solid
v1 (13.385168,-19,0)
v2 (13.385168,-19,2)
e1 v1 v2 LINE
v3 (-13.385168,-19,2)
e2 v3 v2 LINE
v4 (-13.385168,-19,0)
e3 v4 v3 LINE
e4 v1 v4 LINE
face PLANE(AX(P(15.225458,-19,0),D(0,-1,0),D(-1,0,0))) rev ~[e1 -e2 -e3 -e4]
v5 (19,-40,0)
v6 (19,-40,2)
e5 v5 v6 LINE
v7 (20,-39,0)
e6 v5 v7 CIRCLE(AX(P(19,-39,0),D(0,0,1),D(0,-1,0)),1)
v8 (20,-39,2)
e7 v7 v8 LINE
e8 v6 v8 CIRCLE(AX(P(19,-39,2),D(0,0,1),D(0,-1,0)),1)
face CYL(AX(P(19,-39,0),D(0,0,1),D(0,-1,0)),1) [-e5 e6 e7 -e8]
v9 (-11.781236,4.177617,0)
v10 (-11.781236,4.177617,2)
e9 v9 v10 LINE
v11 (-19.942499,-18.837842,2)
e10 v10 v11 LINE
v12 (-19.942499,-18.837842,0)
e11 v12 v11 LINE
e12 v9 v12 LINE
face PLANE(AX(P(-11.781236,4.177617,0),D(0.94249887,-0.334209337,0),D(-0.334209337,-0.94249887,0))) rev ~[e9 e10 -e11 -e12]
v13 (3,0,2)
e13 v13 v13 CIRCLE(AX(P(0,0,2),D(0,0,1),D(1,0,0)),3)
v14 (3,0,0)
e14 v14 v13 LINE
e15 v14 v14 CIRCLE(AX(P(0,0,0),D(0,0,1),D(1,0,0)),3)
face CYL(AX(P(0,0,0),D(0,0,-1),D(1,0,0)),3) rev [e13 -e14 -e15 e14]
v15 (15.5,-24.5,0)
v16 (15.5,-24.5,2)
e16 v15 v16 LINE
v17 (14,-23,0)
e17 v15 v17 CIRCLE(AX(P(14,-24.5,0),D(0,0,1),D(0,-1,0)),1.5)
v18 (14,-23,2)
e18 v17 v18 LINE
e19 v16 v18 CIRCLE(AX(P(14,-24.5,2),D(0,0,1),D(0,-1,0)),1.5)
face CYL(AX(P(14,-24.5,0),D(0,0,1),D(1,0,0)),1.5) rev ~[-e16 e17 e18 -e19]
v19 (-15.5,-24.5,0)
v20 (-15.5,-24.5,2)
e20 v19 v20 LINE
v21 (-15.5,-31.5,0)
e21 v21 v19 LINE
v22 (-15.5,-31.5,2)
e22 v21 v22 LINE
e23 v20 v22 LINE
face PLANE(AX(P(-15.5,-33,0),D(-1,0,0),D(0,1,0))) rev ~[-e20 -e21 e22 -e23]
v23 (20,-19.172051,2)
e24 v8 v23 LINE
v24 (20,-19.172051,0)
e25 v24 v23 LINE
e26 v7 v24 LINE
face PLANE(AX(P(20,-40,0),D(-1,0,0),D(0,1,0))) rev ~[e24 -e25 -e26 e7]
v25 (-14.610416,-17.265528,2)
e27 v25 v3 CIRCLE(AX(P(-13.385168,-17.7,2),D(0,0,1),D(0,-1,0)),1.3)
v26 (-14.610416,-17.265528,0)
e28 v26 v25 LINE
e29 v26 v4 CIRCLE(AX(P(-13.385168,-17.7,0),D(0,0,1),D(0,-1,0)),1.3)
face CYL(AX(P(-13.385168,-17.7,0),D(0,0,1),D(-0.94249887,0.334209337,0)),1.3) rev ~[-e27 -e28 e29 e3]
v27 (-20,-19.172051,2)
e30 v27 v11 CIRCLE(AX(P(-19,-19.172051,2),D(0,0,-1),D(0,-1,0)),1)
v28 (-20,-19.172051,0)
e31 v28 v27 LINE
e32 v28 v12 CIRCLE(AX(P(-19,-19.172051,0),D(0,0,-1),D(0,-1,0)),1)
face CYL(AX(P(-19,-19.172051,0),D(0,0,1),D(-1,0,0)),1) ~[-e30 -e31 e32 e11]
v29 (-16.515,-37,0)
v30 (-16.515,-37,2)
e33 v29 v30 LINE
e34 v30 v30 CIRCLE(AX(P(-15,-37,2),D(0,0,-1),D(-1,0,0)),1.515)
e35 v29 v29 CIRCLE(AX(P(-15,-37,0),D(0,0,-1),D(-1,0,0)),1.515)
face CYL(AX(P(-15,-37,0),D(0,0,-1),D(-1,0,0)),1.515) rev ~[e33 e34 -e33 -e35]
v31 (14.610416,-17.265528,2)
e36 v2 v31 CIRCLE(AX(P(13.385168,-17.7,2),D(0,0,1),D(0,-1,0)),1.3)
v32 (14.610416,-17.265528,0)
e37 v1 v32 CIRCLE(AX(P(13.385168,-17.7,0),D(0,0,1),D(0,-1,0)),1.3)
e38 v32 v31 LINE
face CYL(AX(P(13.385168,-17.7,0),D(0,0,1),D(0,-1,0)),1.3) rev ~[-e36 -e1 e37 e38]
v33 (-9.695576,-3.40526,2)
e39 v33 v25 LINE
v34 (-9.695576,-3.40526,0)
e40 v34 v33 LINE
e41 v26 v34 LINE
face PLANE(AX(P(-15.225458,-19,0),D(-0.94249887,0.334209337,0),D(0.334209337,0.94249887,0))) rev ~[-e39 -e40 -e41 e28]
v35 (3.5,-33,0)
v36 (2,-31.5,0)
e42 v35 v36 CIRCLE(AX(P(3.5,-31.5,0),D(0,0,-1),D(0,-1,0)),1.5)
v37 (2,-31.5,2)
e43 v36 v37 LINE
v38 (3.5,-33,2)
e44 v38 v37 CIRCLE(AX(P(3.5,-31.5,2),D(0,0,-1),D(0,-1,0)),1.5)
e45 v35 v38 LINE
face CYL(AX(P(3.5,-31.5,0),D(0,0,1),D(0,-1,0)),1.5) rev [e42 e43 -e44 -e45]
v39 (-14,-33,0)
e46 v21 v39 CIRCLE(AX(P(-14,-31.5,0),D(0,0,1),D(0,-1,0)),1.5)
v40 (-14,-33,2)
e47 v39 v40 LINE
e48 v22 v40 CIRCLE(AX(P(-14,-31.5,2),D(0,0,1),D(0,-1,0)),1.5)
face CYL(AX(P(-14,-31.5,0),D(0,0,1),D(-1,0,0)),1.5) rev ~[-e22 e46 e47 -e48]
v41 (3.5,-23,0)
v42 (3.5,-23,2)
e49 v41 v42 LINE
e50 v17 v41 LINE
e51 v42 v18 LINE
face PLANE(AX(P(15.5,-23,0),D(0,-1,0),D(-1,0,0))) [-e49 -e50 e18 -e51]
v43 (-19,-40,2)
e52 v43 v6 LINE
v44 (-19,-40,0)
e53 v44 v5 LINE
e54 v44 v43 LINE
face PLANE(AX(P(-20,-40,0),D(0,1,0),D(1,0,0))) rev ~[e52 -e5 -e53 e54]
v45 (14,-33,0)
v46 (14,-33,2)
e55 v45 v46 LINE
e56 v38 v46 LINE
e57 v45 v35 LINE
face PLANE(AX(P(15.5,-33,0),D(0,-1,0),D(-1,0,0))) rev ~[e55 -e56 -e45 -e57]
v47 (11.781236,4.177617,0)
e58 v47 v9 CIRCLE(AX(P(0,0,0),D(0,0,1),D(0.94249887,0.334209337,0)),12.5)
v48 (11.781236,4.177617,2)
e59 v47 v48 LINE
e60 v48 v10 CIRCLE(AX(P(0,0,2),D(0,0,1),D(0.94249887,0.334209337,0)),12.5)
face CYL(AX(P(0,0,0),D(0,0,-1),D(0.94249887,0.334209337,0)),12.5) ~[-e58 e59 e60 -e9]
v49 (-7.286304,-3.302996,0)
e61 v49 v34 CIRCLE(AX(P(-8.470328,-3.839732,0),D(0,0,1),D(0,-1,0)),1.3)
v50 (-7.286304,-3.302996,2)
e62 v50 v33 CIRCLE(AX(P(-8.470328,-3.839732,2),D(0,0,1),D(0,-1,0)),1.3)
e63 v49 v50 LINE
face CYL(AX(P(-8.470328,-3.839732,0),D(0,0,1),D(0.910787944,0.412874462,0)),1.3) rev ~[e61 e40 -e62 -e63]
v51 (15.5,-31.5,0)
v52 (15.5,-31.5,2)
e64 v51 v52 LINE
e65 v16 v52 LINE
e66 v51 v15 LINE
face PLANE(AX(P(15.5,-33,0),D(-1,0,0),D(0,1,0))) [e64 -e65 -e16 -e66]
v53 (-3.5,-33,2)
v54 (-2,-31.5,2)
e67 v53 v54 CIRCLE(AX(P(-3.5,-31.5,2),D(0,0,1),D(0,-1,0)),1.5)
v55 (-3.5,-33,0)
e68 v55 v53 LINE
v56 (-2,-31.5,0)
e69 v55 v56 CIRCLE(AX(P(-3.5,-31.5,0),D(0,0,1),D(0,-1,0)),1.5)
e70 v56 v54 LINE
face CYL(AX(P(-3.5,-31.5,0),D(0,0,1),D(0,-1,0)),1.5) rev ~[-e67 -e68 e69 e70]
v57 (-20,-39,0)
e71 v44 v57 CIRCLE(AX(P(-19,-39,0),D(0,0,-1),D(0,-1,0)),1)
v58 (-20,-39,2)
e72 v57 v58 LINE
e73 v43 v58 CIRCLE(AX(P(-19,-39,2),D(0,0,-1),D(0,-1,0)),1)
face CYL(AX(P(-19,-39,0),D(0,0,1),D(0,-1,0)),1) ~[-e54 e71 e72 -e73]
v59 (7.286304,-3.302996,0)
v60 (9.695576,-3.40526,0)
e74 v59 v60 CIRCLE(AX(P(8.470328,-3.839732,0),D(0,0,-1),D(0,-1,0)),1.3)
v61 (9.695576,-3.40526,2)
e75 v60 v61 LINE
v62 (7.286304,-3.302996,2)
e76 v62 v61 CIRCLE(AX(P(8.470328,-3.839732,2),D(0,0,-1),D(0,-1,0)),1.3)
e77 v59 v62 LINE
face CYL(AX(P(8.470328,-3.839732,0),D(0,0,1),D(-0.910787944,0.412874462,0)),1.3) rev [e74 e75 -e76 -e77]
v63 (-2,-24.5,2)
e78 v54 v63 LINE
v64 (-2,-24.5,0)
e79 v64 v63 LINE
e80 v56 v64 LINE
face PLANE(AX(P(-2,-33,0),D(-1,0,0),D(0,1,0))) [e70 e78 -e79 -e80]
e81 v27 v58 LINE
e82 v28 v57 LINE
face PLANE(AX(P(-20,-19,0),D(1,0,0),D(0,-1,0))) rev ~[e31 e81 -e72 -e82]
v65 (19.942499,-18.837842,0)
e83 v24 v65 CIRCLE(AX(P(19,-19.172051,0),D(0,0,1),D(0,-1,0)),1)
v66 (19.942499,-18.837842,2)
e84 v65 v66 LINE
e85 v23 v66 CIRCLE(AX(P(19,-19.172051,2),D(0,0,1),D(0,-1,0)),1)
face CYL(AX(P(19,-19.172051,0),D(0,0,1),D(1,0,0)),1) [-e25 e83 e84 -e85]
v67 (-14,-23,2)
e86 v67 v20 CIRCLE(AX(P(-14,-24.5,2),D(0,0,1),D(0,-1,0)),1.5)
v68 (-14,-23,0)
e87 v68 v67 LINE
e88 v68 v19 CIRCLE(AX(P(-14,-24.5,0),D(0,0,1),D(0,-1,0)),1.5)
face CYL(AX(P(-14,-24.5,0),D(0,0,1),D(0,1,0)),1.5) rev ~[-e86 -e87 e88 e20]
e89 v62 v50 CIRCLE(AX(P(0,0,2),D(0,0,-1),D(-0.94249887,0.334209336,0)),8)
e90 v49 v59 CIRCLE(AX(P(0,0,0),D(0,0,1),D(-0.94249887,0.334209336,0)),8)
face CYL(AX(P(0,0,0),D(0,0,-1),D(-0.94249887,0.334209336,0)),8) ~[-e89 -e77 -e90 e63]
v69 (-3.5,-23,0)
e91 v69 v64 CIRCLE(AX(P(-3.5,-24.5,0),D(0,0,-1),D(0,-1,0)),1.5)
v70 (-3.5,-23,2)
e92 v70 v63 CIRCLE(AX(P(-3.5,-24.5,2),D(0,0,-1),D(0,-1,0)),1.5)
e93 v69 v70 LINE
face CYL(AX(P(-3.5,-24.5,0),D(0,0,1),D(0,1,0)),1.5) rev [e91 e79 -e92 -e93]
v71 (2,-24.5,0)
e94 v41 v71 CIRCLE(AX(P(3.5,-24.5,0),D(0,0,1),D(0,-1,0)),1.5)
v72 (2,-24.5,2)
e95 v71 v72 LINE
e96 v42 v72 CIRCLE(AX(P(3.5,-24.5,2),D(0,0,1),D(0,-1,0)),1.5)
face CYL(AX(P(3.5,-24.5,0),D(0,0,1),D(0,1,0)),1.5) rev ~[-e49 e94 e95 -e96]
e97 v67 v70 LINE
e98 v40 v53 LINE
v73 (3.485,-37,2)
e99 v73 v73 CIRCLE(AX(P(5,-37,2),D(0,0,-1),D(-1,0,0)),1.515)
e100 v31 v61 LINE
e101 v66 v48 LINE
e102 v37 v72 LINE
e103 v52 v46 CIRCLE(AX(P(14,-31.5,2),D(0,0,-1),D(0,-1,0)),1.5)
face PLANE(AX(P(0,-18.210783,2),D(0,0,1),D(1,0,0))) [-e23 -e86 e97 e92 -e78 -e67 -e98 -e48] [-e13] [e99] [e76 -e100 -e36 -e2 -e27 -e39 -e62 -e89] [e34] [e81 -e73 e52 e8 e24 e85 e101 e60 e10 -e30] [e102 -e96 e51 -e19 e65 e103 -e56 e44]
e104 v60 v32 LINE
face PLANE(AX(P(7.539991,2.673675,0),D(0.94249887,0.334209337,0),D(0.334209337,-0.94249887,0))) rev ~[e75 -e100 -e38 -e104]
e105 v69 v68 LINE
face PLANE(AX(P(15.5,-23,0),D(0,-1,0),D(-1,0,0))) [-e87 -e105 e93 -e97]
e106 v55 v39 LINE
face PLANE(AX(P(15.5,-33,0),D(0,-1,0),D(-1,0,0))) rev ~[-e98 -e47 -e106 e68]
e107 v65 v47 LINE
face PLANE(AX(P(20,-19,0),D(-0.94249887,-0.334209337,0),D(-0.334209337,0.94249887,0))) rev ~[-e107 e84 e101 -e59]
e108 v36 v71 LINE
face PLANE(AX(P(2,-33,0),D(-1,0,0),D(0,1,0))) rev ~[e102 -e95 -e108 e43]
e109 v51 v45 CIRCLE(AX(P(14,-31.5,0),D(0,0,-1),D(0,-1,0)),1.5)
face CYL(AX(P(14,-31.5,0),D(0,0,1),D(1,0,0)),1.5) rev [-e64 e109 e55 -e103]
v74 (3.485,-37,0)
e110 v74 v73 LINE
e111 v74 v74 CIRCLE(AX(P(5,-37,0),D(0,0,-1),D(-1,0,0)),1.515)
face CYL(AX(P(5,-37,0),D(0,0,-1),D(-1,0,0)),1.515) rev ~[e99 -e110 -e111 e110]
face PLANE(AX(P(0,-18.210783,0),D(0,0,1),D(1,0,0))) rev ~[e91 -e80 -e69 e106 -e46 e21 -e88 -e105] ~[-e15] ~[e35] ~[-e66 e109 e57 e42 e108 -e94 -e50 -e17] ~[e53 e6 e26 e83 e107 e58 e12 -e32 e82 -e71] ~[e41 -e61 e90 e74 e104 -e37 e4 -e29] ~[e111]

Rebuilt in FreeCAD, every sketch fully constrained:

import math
import FreeCAD as App
import Part
import Sketcher

V = App.Vector


def edges_at(feature, points):
    """Names of the edges that pass closest to the given points."""
    edges = feature.Shape.Edges
    near = lambda p: min(range(len(edges)), key=lambda i: edges[i].distToShape(Part.Vertex(*p))[0])
    return sorted({f"Edge{near(p) + 1}" for p in points})


def add_polygon(sketch, points):
    """Adds a closed chain of lines whose ends are joined by coincident constraints."""
    first, n = sketch.GeometryCount, len(points)
    for a, b in zip(points, points[1:] + points[:1]):
        sketch.addGeometry(Part.LineSegment(App.Vector(*a, 0), App.Vector(*b, 0)), False)
    for i in range(n):
        sketch.addConstraint(Sketcher.Constraint("Coincident", first + i, 2, first + (i + 1) % n, 1))

doc = App.newDocument("Part")
params = doc.addObject("Spreadsheet::Sheet", "Params")
for row, (alias, value) in enumerate([
    ("sketch1_diameter", "6 mm"),
    ("sketch1_radius", "12.5 mm"),
    ("sketch1_width", "40 mm"),
    ("sketch1_height", "21 mm"),
    ("pad1_length", "2 mm"),
    ("fillet_radius", "1 mm"),
    ("sketch2_diameter", "3.03 mm"),
    ("pocket1_length", "10 mm"),
    ("sketch3_radius", "8 mm"),
    ("pocket2_length", "10 mm"),
    ("fillet2_radius", "1.3 mm"),
    ("sketch4_width", "31 mm"),
    ("sketch4_height", "10 mm"),
    ("pocket3_length", "10 mm"),
    ("sketch5_width", "4 mm"),
    ("sketch5_height", "10 mm"),
    ("pad2_length", "2 mm"),
    ("fillet3_radius", "1.5 mm"),
], start=1):
    params.set(f"A{row}", alias)
    params.set(f"B{row}", "=" + value)
    params.setAlias(f"B{row}", alias)

body = doc.addObject("PartDesign::Body", "Body")

# Sketch on XY plane
sketch1 = body.newObject("Sketcher::SketchObject", "Sketch")
sketch1.AttachmentSupport = (doc.getObject("XY_Plane"), [""])
sketch1.MapMode = "FlatFace"
sketch1.addGeometry([
    Part.LineSegment(V(-20, -40, 0), V(20, -40, 0)),  # 0
    Part.LineSegment(V(20, -40, 0), V(20, -19, 0)),  # 1
    Part.LineSegment(V(20, -19, 0), V(11.8, 4.2, 0)),  # 2
    Part.ArcOfCircle(Part.Circle(V(0, 0, 0), V(0, 0, 1), 12.5), math.radians(20), math.radians(160)),  # 3
    Part.LineSegment(V(-11.8, 4.2, 0), V(-20, -19, 0)),  # 4
    Part.LineSegment(V(-20, -19, 0), V(-20, -40, 0)),  # 5
    Part.Circle(V(0, 0, 0), V(0, 0, 1), 3),  # 6
], False)
sketch1.addConstraint([
    Sketcher.Constraint("Coincident", 0, 2, 1, 1),
    Sketcher.Constraint("Coincident", 1, 2, 2, 1),
    Sketcher.Constraint("Tangent", 2, 2, 3, 1),
    Sketcher.Constraint("Tangent", 3, 2, 4, 1),
    Sketcher.Constraint("Coincident", 4, 2, 5, 1),
    Sketcher.Constraint("Coincident", 5, 2, 0, 1),
    Sketcher.Constraint("Horizontal", 0),
    Sketcher.Constraint("Vertical", 1),
    Sketcher.Constraint("Vertical", 5),
    Sketcher.Constraint("Coincident", 3, 3, -1, 1),
    Sketcher.Constraint("Coincident", 6, 3, -1, 1),
    Sketcher.Constraint("Symmetric", 1, 2, 4, 2, -2),
    Sketcher.Constraint("Diameter", 6, 6.0),
    Sketcher.Constraint("Radius", 3, 12.5),
    Sketcher.Constraint("DistanceX", 0, 1, 0, 2, 40.0),
    Sketcher.Constraint("DistanceY", 1, 1, 1, 2, 21.0),
    Sketcher.Constraint("DistanceY", 0, 2, -1, 1, 40.0),
])
sketch1.setExpression("Constraints[12]", "Params.sketch1_diameter")
sketch1.setExpression("Constraints[13]", "Params.sketch1_radius")
sketch1.setExpression("Constraints[14]", "Params.sketch1_width")
sketch1.setExpression("Constraints[15]", "Params.sketch1_height")
pad1 = body.newObject("PartDesign::Pad", "Pad")
pad1.Profile = sketch1
pad1.setExpression("Length", "Params.pad1_length")
doc.recompute()

fillet = body.newObject("PartDesign::Fillet", "Fillet")
fillet.Base = (pad1, edges_at(pad1, [
    (20, -19, 1),
    (20, -40, 1),
    (-20, -40, 1),
    (-20, -19, 1),
]))
fillet.setExpression("Radius", "Params.fillet_radius")

# Sketch on XY plane
sketch2 = body.newObject("Sketcher::SketchObject", "Sketch001")
sketch2.AttachmentSupport = (doc.getObject("XY_Plane"), [""])
sketch2.MapMode = "FlatFace"
sketch2.addGeometry([
    Part.Circle(V(-15, -37, 0), V(0, 0, 1), 1.5),
    Part.Circle(V(5, -37, 0), V(0, 0, 1), 1.5),
], False)
sketch2.addConstraint([
    Sketcher.Constraint("Equal", 0, 1),
    Sketcher.Constraint("Horizontal", 0, 3, 1, 3),
    Sketcher.Constraint("Diameter", 0, 3.03),
    Sketcher.Constraint("DistanceX", 0, 3, -1, 1, 15.0),
    Sketcher.Constraint("DistanceY", 0, 3, -1, 1, 37.0),
    Sketcher.Constraint("DistanceX", -1, 1, 1, 3, 5.0),
])
sketch2.setExpression("Constraints[2]", "Params.sketch2_diameter")
pocket1 = body.newObject("PartDesign::Pocket", "Pocket")
pocket1.Profile = sketch2
pocket1.setExpression("Length", "Params.pocket1_length")
pocket1.Reversed = True

# Sketch on XY plane
sketch3 = body.newObject("Sketcher::SketchObject", "Sketch002")
sketch3.AttachmentSupport = (doc.getObject("XY_Plane"), [""])
sketch3.MapMode = "FlatFace"
sketch3.addGeometry([
    Part.LineSegment(V(8, 3, 0), V(15, -19, 0)),
    Part.LineSegment(V(15, -19, 0), V(-15, -19, 0)),
    Part.LineSegment(V(-15, -19, 0), V(-8, 3, 0)),
    Part.ArcOfCircle(Part.Circle(V(0, 0, 0), V(0, 0, 1), 8), math.radians(160), math.radians(380)),
], False)
sketch3.addConstraint([
    Sketcher.Constraint("Coincident", 0, 2, 1, 1),
    Sketcher.Constraint("Coincident", 1, 2, 2, 1),
    Sketcher.Constraint("Tangent", 2, 2, 3, 1),
    Sketcher.Constraint("Tangent", 3, 2, 0, 1),
    Sketcher.Constraint("Horizontal", 1),
    Sketcher.Constraint("Coincident", 3, 3, -1, 1),
    Sketcher.Constraint("Horizontal", 2, 2, 3, 2),
    Sketcher.Constraint("Radius", 3, 8.0),
    Sketcher.Constraint("DistanceY", 0, 2, -1, 1, 19.0),
    Sketcher.Constraint("Distance", 0, 22.995969),
])
sketch3.setExpression("Constraints[7]", "Params.sketch3_radius")
pocket2 = body.newObject("PartDesign::Pocket", "Pocket001")
pocket2.Profile = sketch3
pocket2.setExpression("Length", "Params.pocket2_length")
pocket2.Reversed = True
doc.recompute()

fillet2 = body.newObject("PartDesign::Fillet", "Fillet001")
fillet2.Base = (pocket2, edges_at(pocket2, [
    (7.54, 2.674, 1),
    (-7.54, 2.674, 1),
    (-15.225, -19, 1),
    (15.225, -19, 1),
]))
fillet2.setExpression("Radius", "Params.fillet2_radius")

# Sketch on XY plane
sketch4 = body.newObject("Sketcher::SketchObject", "Sketch003")
sketch4.AttachmentSupport = (doc.getObject("XY_Plane"), [""])
sketch4.MapMode = "FlatFace"
add_polygon(sketch4, [(16, -23), (16, -33), (-16, -33), (-16, -23)])  # lines 0-3
sketch4.addConstraint([
    Sketcher.Constraint("Vertical", 0),
    Sketcher.Constraint("Horizontal", 1),
    Sketcher.Constraint("Vertical", 2),
    Sketcher.Constraint("Horizontal", 3),
    Sketcher.Constraint("DistanceX", 1, 2, 1, 1, 31.0),
    Sketcher.Constraint("DistanceY", 0, 2, 0, 1, 10.0),
    Sketcher.Constraint("DistanceY", 0, 2, -1, 1, 33.0),
    Sketcher.Constraint("DistanceX", -1, 1, 0, 2, 15.5),
])
sketch4.setExpression("Constraints[8]", "Params.sketch4_width")
sketch4.setExpression("Constraints[9]", "Params.sketch4_height")
pocket3 = body.newObject("PartDesign::Pocket", "Pocket002")
pocket3.Profile = sketch4
pocket3.setExpression("Length", "Params.pocket3_length")
pocket3.Reversed = True

# Sketch on XY plane
sketch5 = body.newObject("Sketcher::SketchObject", "Sketch004")
sketch5.AttachmentSupport = (doc.getObject("XY_Plane"), [""])
sketch5.MapMode = "FlatFace"
add_polygon(sketch5, [(2, -23), (2, -33), (-2, -33), (-2, -23)])  # lines 0-3
sketch5.addConstraint([
    Sketcher.Constraint("Vertical", 0),
    Sketcher.Constraint("Horizontal", 1),
    Sketcher.Constraint("Vertical", 2),
    Sketcher.Constraint("Horizontal", 3),
    Sketcher.Constraint("DistanceX", 1, 2, 1, 1, 4.0),
    Sketcher.Constraint("DistanceY", 0, 2, 0, 1, 10.0),
    Sketcher.Constraint("DistanceX", -1, 1, 0, 2, 2.0),
    Sketcher.Constraint("DistanceY", 0, 2, -1, 1, 33.0),
])
sketch5.setExpression("Constraints[8]", "Params.sketch5_width")
sketch5.setExpression("Constraints[9]", "Params.sketch5_height")
pad2 = body.newObject("PartDesign::Pad", "Pad001")
pad2.Profile = sketch5
pad2.setExpression("Length", "Params.pad2_length")
doc.recompute()

fillet3 = body.newObject("PartDesign::Fillet", "Fillet002")
fillet3.Base = (pad2, edges_at(pad2, [
    (15.5, -33, 1),
    (15.5, -23, 1),
    (-15.5, -23, 1),
    (-15.5, -33, 1),
    (2, -33, 1),
    (2, -23, 1),
    (-2, -23, 1),
    (-2, -33, 1),
]))
fillet3.setExpression("Radius", "Params.fillet3_radius")

doc.recompute()
